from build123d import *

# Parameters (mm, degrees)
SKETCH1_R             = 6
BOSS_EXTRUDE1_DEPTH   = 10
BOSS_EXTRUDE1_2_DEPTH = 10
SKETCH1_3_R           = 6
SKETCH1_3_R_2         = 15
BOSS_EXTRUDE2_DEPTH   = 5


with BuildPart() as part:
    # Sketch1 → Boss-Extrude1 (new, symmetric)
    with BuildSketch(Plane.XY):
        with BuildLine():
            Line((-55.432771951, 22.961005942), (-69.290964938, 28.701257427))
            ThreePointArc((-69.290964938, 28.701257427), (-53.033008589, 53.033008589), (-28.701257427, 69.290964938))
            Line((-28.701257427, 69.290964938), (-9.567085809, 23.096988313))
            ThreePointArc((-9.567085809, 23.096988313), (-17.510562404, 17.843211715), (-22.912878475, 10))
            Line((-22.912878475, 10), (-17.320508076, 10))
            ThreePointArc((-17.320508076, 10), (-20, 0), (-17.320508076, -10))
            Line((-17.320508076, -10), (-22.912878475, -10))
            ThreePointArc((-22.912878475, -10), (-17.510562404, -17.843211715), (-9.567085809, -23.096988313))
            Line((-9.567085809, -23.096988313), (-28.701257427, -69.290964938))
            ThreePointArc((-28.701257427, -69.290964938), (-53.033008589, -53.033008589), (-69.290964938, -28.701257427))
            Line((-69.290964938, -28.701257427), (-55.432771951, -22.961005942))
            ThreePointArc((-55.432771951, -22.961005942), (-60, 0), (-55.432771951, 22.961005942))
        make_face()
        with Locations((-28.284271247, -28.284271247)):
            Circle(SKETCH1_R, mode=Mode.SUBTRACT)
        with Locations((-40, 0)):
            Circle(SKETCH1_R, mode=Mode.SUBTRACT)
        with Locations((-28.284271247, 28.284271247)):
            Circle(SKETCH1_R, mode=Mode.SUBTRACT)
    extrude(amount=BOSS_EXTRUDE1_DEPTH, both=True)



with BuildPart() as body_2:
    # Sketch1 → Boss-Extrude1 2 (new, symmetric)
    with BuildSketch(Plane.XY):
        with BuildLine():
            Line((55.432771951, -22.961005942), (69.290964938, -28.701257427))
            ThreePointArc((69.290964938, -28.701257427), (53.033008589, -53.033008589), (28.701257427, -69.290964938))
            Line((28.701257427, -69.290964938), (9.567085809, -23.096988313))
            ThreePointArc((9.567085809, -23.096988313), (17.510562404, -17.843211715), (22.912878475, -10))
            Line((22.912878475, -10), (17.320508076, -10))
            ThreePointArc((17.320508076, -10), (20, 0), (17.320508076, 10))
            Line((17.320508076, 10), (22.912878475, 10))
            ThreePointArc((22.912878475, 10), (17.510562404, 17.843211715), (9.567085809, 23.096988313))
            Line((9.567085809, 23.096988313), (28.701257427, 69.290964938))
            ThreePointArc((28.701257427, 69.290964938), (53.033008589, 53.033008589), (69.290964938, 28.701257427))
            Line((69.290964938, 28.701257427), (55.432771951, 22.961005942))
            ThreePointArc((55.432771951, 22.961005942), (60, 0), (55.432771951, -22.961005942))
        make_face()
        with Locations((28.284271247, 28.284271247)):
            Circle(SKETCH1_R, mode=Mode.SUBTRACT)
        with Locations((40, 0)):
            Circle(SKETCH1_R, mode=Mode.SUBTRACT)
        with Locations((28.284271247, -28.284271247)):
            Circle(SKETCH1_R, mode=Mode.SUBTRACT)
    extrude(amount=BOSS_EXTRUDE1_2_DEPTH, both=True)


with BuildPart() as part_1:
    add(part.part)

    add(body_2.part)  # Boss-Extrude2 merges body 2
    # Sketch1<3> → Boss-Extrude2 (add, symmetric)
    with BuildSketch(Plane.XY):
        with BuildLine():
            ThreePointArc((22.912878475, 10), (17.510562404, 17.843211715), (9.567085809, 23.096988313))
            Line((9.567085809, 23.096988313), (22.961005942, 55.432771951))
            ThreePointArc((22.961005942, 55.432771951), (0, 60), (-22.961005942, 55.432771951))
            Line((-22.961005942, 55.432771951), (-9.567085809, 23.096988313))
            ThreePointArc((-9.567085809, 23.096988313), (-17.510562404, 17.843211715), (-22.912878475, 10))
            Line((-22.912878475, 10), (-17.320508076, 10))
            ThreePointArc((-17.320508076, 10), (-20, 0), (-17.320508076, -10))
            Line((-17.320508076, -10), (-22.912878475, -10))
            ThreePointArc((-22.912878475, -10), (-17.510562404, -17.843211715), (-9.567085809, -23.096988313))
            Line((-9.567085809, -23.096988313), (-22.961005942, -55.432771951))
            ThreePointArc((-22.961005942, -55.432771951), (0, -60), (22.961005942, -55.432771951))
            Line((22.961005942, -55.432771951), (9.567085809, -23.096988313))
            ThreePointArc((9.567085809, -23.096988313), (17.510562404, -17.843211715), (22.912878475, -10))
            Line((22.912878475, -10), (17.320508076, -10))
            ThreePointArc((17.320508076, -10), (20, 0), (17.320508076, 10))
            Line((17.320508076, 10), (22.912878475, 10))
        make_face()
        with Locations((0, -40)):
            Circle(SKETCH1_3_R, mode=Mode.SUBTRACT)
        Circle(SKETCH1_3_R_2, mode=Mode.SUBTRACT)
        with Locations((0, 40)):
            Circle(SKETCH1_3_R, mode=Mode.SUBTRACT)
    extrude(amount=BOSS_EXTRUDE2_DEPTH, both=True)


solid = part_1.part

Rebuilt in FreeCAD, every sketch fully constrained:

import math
import FreeCAD as App
import Part
import Sketcher
from FreeCAD import Vector
Q = App.Units.Quantity

doc = App.newDocument("Part")
body = doc.addObject("PartDesign::Body", "Body")

# Sketch on XY plane
sketch1 = doc.addObject("Sketcher::SketchObject", "Sketch")
body.addObject(sketch1)
sketch1.AttachmentSupport = (doc.XY_Plane, [""])
sketch1.MapMode = "FlatFace"
sketch1.addGeometry([
    Part.LineSegment(Vector(-69, 29, 0), Vector(-55, 23, 0)),  # 0
    Part.ArcOfCircle(Part.Circle(Vector(0, 0, 0), Vector(0, 0, 1), 60), math.radians(158), math.radians(202)),  # 1
    Part.LineSegment(Vector(-55, -23, 0), Vector(-69, -29, 0)),  # 2
    Part.ArcOfCircle(Part.Circle(Vector(0, 0, 0), Vector(0, 0, 1), 75), math.radians(-158), math.radians(-112)),  # 3
    Part.LineSegment(Vector(-29, -69, 0), Vector(-10, -23, 0)),  # 4
    Part.ArcOfCircle(Part.Circle(Vector(0, 0, 0), Vector(0, 0, 1), 25), math.radians(-156), math.radians(-112)),  # 5
    Part.LineSegment(Vector(-23, -10, 0), Vector(-17, -10, 0)),  # 6
    Part.ArcOfCircle(Part.Circle(Vector(0, 0, 0), Vector(0, 0, 1), 20), math.radians(150), math.radians(210)),  # 7
    Part.LineSegment(Vector(-17, 10, 0), Vector(-23, 10, 0)),  # 8
    Part.ArcOfCircle(Part.Circle(Vector(0, 0, 0), Vector(0, 0, 1), 25), math.radians(112), math.radians(156)),  # 9
    Part.LineSegment(Vector(-10, 23, 0), Vector(-29, 69, 0)),  # 10
    Part.ArcOfCircle(Part.Circle(Vector(0, 0, 0), Vector(0, 0, 1), 75), math.radians(112), math.radians(158)),  # 11
    Part.Circle(Vector(-28, -28, 0), Vector(0, 0, 1), 6),  # 12
    Part.Circle(Vector(-40, 0, 0), Vector(0, 0, 1), 6),  # 13
    Part.Circle(Vector(-28, 28, 0), Vector(0, 0, 1), 6),  # 14
], False)
sketch1.addConstraint([
    Sketcher.Constraint("Coincident", 0, 2, 1, 1),
    Sketcher.Constraint("Coincident", 1, 2, 2, 1),
    Sketcher.Constraint("Coincident", 2, 2, 3, 1),
    Sketcher.Constraint("Coincident", 3, 2, 4, 1),
    Sketcher.Constraint("Coincident", 4, 2, 5, 2),
    Sketcher.Constraint("Coincident", 5, 1, 6, 1),
    Sketcher.Constraint("Coincident", 6, 2, 7, 2),
    Sketcher.Constraint("Coincident", 7, 1, 8, 1),
    Sketcher.Constraint("Coincident", 8, 2, 9, 2),
    Sketcher.Constraint("Coincident", 9, 1, 10, 1),
    Sketcher.Constraint("Coincident", 10, 2, 11, 1),
    Sketcher.Constraint("Coincident", 11, 2, 0, 1),
    Sketcher.Constraint("Horizontal", 6),
    Sketcher.Constraint("Horizontal", 8),
    Sketcher.Constraint("Coincident", 1, 3, -1, 1),
    Sketcher.Constraint("Coincident", 3, 3, -1, 1),
    Sketcher.Constraint("Coincident", 5, 3, -1, 1),
    Sketcher.Constraint("Coincident", 7, 3, -1, 1),
    Sketcher.Constraint("Coincident", 9, 3, -1, 1),
    Sketcher.Constraint("Coincident", 11, 3, -1, 1),
    Sketcher.Constraint("Equal", 5, 9),
    Sketcher.Constraint("Equal", 3, 11),
    Sketcher.Constraint("Equal", 12, 13),
    Sketcher.Constraint("Equal", 13, 14),
    Sketcher.Constraint("Symmetric", 12, 3, 14, 3, -1),
    Sketcher.Constraint("PointOnObject", 13, 3, -1),
    Sketcher.Constraint("Perpendicular", 0, 4),
    Sketcher.Constraint("Perpendicular", 2, 10),
    Sketcher.Constraint("Vertical", 0, 2, 1, 2),
    Sketcher.Constraint("Vertical", 6, 2, 7, 1),
    Sketcher.Constraint("Vertical", 4, 2, 9, 1),
    Sketcher.Constraint("Vertical", 3, 2, 10, 2),
    Sketcher.Constraint("Diameter", 12, Q("12 mm")),
    Sketcher.Constraint("Radius", 1, Q("60 mm")),
    Sketcher.Constraint("Radius", 3, Q("75 mm")),
    Sketcher.Constraint("Radius", 5, Q("25 mm")),
    Sketcher.Constraint("Radius", 7, Q("20 mm")),
    Sketcher.Constraint("DistanceX", 13, 3, -1, 1, Q("40 mm")),
    Sketcher.Constraint("DistanceY", 5, 1, -1, 1, Q("10 mm")),
    Sketcher.Constraint("Angle", 0, Q("-22.5 deg")),
    Sketcher.Constraint("DistanceX", 0, 2, 14, 3, Q("27.148501 mm")),
    Sketcher.Constraint("DistanceX", 12, 3, -1, 1, Q("28.284271 mm")),
    Sketcher.Constraint("DistanceY", 12, 3, -1, 1, Q("28.284271 mm")),
    Sketcher.Constraint("DistanceY", 4, 2, -1, 1, Q("23.096988 mm")),
])
pad1 = doc.addObject("PartDesign::Pad", "Pad")
body.addObject(pad1)
pad1.Profile = sketch1
pad1.Length = 20
pad1.Midplane = True
body2 = doc.addObject("PartDesign::Body", "Body001")

# Sketch on XY plane
sketch2 = doc.addObject("Sketcher::SketchObject", "Sketch001")
body2.addObject(sketch2)
sketch2.AttachmentSupport = (doc.getObject("XY_Plane001"), [""])
sketch2.MapMode = "FlatFace"
sketch2.addGeometry([
    Part.LineSegment(Vector(69, -29, 0), Vector(55, -23, 0)),  # 0
    Part.ArcOfCircle(Part.Circle(Vector(0, 0, 0), Vector(0, 0, 1), 60), math.radians(-22), math.radians(22)),  # 1
    Part.LineSegment(Vector(55, 23, 0), Vector(69, 29, 0)),  # 2
    Part.ArcOfCircle(Part.Circle(Vector(0, 0, 0), Vector(0, 0, 1), 75), math.radians(22), math.radians(68)),  # 3
    Part.LineSegment(Vector(29, 69, 0), Vector(10, 23, 0)),  # 4
    Part.ArcOfCircle(Part.Circle(Vector(0, 0, 0), Vector(0, 0, 1), 25), math.radians(24), math.radians(68)),  # 5
    Part.LineSegment(Vector(23, 10, 0), Vector(17, 10, 0)),  # 6
    Part.ArcOfCircle(Part.Circle(Vector(0, 0, 0), Vector(0, 0, 1), 20), math.radians(-30), math.radians(30)),  # 7
    Part.LineSegment(Vector(17, -10, 0), Vector(23, -10, 0)),  # 8
    Part.ArcOfCircle(Part.Circle(Vector(0, 0, 0), Vector(0, 0, 1), 25), math.radians(-68), math.radians(-24)),  # 9
    Part.LineSegment(Vector(10, -23, 0), Vector(29, -69, 0)),  # 10
    Part.ArcOfCircle(Part.Circle(Vector(0, 0, 0), Vector(0, 0, 1), 75), math.radians(-68), math.radians(-22)),  # 11
    Part.Circle(Vector(28, -28, 0), Vector(0, 0, 1), 6),  # 12
    Part.Circle(Vector(40, 0, 0), Vector(0, 0, 1), 6),  # 13
    Part.Circle(Vector(28, 28, 0), Vector(0, 0, 1), 6),  # 14
], False)
sketch2.addConstraint([
    Sketcher.Constraint("Coincident", 0, 2, 1, 1),
    Sketcher.Constraint("Coincident", 1, 2, 2, 1),
    Sketcher.Constraint("Coincident", 2, 2, 3, 1),
    Sketcher.Constraint("Coincident", 3, 2, 4, 1),
    Sketcher.Constraint("Coincident", 4, 2, 5, 2),
    Sketcher.Constraint("Coincident", 5, 1, 6, 1),
    Sketcher.Constraint("Coincident", 6, 2, 7, 2),
    Sketcher.Constraint("Coincident", 7, 1, 8, 1),
    Sketcher.Constraint("Coincident", 8, 2, 9, 2),
    Sketcher.Constraint("Coincident", 9, 1, 10, 1),
    Sketcher.Constraint("Coincident", 10, 2, 11, 1),
    Sketcher.Constraint("Coincident", 11, 2, 0, 1),
    Sketcher.Constraint("Horizontal", 6),
    Sketcher.Constraint("Horizontal", 8),
    Sketcher.Constraint("Coincident", 1, 3, -1, 1),
    Sketcher.Constraint("Coincident", 3, 3, -1, 1),
    Sketcher.Constraint("Coincident", 5, 3, -1, 1),
    Sketcher.Constraint("Coincident", 7, 3, -1, 1),
    Sketcher.Constraint("Coincident", 9, 3, -1, 1),
    Sketcher.Constraint("Coincident", 11, 3, -1, 1),
    Sketcher.Constraint("Equal", 5, 9),
    Sketcher.Constraint("Equal", 3, 11),
    Sketcher.Constraint("Equal", 12, 13),
    Sketcher.Constraint("Equal", 13, 14),
    Sketcher.Constraint("Symmetric", 12, 3, 14, 3, -1),
    Sketcher.Constraint("PointOnObject", 13, 3, -1),
    Sketcher.Constraint("Perpendicular", 0, 4),
    Sketcher.Constraint("Perpendicular", 2, 10),
    Sketcher.Constraint("Vertical", 0, 2, 1, 2),
    Sketcher.Constraint("Vertical", 6, 2, 7, 1),
    Sketcher.Constraint("Vertical", 4, 2, 9, 1),
    Sketcher.Constraint("Vertical", 3, 2, 10, 2),
    Sketcher.Constraint("Diameter", 12, Q("12 mm")),
    Sketcher.Constraint("Radius", 1, Q("60 mm")),
    Sketcher.Constraint("Radius", 3, Q("75 mm")),
    Sketcher.Constraint("Radius", 5, Q("25 mm")),
    Sketcher.Constraint("Radius", 7, Q("20 mm")),
    Sketcher.Constraint("DistanceX", -1, 1, 13, 3, Q("40 mm")),
    Sketcher.Constraint("DistanceY", -1, 1, 5, 1, Q("10 mm")),
    Sketcher.Constraint("Angle", 0, Q("157.5 deg")),
    Sketcher.Constraint("DistanceX", 12, 3, 0, 2, Q("27.148501 mm")),
    Sketcher.Constraint("DistanceX", -1, 1, 12, 3, Q("28.284271 mm")),
    Sketcher.Constraint("DistanceY", 12, 3, -1, 1, Q("28.284271 mm")),
    Sketcher.Constraint("DistanceY", -1, 1, 4, 2, Q("23.096988 mm")),
])
pad2 = doc.addObject("PartDesign::Pad", "Pad001")
body2.addObject(pad2)
pad2.Profile = sketch2
pad2.Length = 20
pad2.Midplane = True
body.AllowCompound = True
doc.recompute()

boolean = doc.addObject("PartDesign::Boolean", "Boolean")
body.addObject(boolean)
boolean.Type = "Fuse"
boolean.addObjects([body2])

# Sketch on XY plane
sketch3 = doc.addObject("Sketcher::SketchObject", "Sketch002")
body.addObject(sketch3)
sketch3.AttachmentSupport = (doc.XY_Plane, [""])
sketch3.MapMode = "FlatFace"
sketch3.addGeometry([
    Part.ArcOfCircle(Part.Circle(Vector(0, 0, 0), Vector(0, 0, 1), 25), math.radians(24), math.radians(68)),  # 0
    Part.LineSegment(Vector(10, 23, 0), Vector(23, 55, 0)),  # 1
    Part.ArcOfCircle(Part.Circle(Vector(0, 0, 0), Vector(0, 0, 1), 60), math.radians(68), math.radians(112)),  # 2
    Part.LineSegment(Vector(-23, 55, 0), Vector(-10, 23, 0)),  # 3
    Part.ArcOfCircle(Part.Circle(Vector(0, 0, 0), Vector(0, 0, 1), 25), math.radians(112), math.radians(156)),  # 4
    Part.LineSegment(Vector(-23, 10, 0), Vector(-17, 10, 0)),  # 5
    Part.ArcOfCircle(Part.Circle(Vector(0, 0, 0), Vector(0, 0, 1), 20), math.radians(150), math.radians(210)),  # 6
    Part.LineSegment(Vector(-17, -10, 0), Vector(-23, -10, 0)),  # 7
    Part.ArcOfCircle(Part.Circle(Vector(0, 0, 0), Vector(0, 0, 1), 25), math.radians(-156), math.radians(-112)),  # 8
    Part.LineSegment(Vector(-10, -23, 0), Vector(-23, -55, 0)),  # 9
    Part.ArcOfCircle(Part.Circle(Vector(0, 0, 0), Vector(0, 0, 1), 60), math.radians(-112), math.radians(-68)),  # 10
    Part.LineSegment(Vector(23, -55, 0), Vector(10, -23, 0)),  # 11
    Part.ArcOfCircle(Part.Circle(Vector(0, 0, 0), Vector(0, 0, 1), 25), math.radians(-68), math.radians(-24)),  # 12
    Part.LineSegment(Vector(23, -10, 0), Vector(17, -10, 0)),  # 13
    Part.ArcOfCircle(Part.Circle(Vector(0, 0, 0), Vector(0, 0, 1), 20), math.radians(-30), math.radians(30)),  # 14
    Part.LineSegment(Vector(17, 10, 0), Vector(23, 10, 0)),  # 15
    Part.Circle(Vector(0, -40, 0), Vector(0, 0, 1), 6),  # 16
    Part.Circle(Vector(0, 0, 0), Vector(0, 0, 1), 15),  # 17
    Part.Circle(Vector(0, 40, 0), Vector(0, 0, 1), 6),  # 18
], False)
sketch3.addConstraint([
    Sketcher.Constraint("Coincident", 0, 2, 1, 1),
    Sketcher.Constraint("Coincident", 1, 2, 2, 1),
    Sketcher.Constraint("Coincident", 2, 2, 3, 1),
    Sketcher.Constraint("Coincident", 3, 2, 4, 1),
    Sketcher.Constraint("Coincident", 4, 2, 5, 1),
    Sketcher.Constraint("Coincident", 5, 2, 6, 1),
    Sketcher.Constraint("Coincident", 6, 2, 7, 1),
    Sketcher.Constraint("Coincident", 7, 2, 8, 1),
    Sketcher.Constraint("Coincident", 8, 2, 9, 1),
    Sketcher.Constraint("Coincident", 9, 2, 10, 1),
    Sketcher.Constraint("Coincident", 10, 2, 11, 1),
    Sketcher.Constraint("Coincident", 11, 2, 12, 1),
    Sketcher.Constraint("Coincident", 12, 2, 13, 1),
    Sketcher.Constraint("Coincident", 13, 2, 14, 1),
    Sketcher.Constraint("Coincident", 14, 2, 15, 1),
    Sketcher.Constraint("Coincident", 15, 2, 0, 1),
    Sketcher.Constraint("Horizontal", 5),
    Sketcher.Constraint("Horizontal", 7),
    Sketcher.Constraint("Horizontal", 13),
    Sketcher.Constraint("Horizontal", 15),
    Sketcher.Constraint("Coincident", 0, 3, -1, 1),
    Sketcher.Constraint("Coincident", 2, 3, -1, 1),
    Sketcher.Constraint("Coincident", 4, 3, -1, 1),
    Sketcher.Constraint("Coincident", 6, 3, -1, 1),
    Sketcher.Constraint("Coincident", 8, 3, -1, 1),
    Sketcher.Constraint("Coincident", 10, 3, -1, 1),
    Sketcher.Constraint("Coincident", 12, 3, -1, 1),
    Sketcher.Constraint("Coincident", 14, 3, -1, 1),
    Sketcher.Constraint("Coincident", 17, 3, -1, 1),
    Sketcher.Constraint("Equal", 0, 4),
    Sketcher.Constraint("Equal", 4, 8),
    Sketcher.Constraint("Equal", 2, 10),
    Sketcher.Constraint("Equal", 8, 12),
    Sketcher.Constraint("Equal", 6, 14),
    Sketcher.Constraint("Equal", 16, 18),
    Sketcher.Constraint("Symmetric", 16, 3, 18, 3, -1, 1),
    Sketcher.Constraint("PointOnObject", 16, 3, -2),
    Sketcher.Constraint("Parallel", 1, 9),
    Sketcher.Constraint("Parallel", 3, 11),
    Sketcher.Constraint("Horizontal", 1, 2, 2, 2),
    Sketcher.Constraint("Horizontal", 0, 2, 3, 2),
    Sketcher.Constraint("Horizontal", 9, 2, 10, 2),
    Sketcher.Constraint("Horizontal", 7, 2, 12, 2),
    Sketcher.Constraint("Horizontal", 5, 2, 14, 2),
    Sketcher.Constraint("Vertical", 5, 2, 6, 2),
    Sketcher.Constraint("Vertical", 3, 2, 8, 2),
    Sketcher.Constraint("Diameter", 16, Q("12 mm")),
    Sketcher.Constraint("Diameter", 17, Q("30 mm")),
    Sketcher.Constraint("Radius", 0, Q("25 mm")),
    Sketcher.Constraint("Radius", 2, Q("60 mm")),
    Sketcher.Constraint("Radius", 6, Q("20 mm")),
    Sketcher.Constraint("DistanceY", 16, 3, -1, 1, Q("40 mm")),
    Sketcher.Constraint("DistanceY", -1, 1, 4, 2, Q("10 mm")),
    Sketcher.Constraint("Angle", 1, Q("67.5 deg")),
    Sketcher.Constraint("DistanceY", -1, 1, 0, 2, Q("23.096988 mm")),
])
pad3 = doc.addObject("PartDesign::Pad", "Pad002")
body.addObject(pad3)
pad3.Profile = sketch3
pad3.Length = 10
pad3.Midplane = True

doc.recompute()
